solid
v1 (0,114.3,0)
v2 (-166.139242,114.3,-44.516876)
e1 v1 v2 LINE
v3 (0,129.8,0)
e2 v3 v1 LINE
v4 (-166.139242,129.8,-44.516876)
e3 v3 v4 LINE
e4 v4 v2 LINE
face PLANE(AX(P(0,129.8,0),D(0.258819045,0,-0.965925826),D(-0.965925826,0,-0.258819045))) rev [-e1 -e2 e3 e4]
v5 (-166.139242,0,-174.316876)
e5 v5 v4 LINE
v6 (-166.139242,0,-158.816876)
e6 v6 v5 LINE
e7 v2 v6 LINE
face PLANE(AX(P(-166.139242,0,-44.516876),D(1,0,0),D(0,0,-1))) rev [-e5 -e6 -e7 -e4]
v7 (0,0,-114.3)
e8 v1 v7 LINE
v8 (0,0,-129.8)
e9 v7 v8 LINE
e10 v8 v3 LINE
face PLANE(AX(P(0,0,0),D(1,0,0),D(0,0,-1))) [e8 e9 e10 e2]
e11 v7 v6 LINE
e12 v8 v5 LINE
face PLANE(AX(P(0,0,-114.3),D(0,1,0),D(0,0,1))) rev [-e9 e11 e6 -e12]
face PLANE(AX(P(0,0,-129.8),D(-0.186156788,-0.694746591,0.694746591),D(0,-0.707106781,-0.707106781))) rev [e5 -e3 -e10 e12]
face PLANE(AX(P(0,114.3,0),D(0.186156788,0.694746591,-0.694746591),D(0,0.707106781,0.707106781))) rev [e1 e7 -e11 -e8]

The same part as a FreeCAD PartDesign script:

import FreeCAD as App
import Part
import Sketcher

V = App.Vector
Q = App.Units.Quantity

doc = App.newDocument("Part")
params = doc.addObject("Spreadsheet::Sheet", "Params")
for row, (alias, value) in enumerate([
    ("sketch1_width", "15.5 mm"),
    ("sketch2_width", "172 mm"),
], start=1):
    params.set(f"A{row}", alias)
    params.set(f"B{row}", "=" + value)
    params.setAlias(f"B{row}", alias)

body = doc.addObject("PartDesign::Body", "Body")

sketch1 = body.newObject("Sketcher::SketchObject", "Sketch")
sketch1.AttachmentSupport = (doc.getObject("YZ_Plane"), [""])
sketch1.MapMode = "FlatFace"
sketch1.addGeometry(Part.LineSegment(V(114, 0, 0), V(0, -114, 0)), False)
sketch1.addGeometry(Part.LineSegment(V(0, -114, 0), V(0, -130, 0)), False)
sketch1.addGeometry(Part.LineSegment(V(0, -130, 0), V(130, 0, 0)), False)
sketch1.addGeometry(Part.LineSegment(V(130, 0, 0), V(114, 0, 0)), False)
sketch1.addConstraint(Sketcher.Constraint("Coincident", 0, 2, 1, 1))
sketch1.addConstraint(Sketcher.Constraint("Coincident", 1, 2, 2, 1))
sketch1.addConstraint(Sketcher.Constraint("Coincident", 2, 2, 3, 1))
sketch1.addConstraint(Sketcher.Constraint("Coincident", 3, 2, 0, 1))
sketch1.addConstraint(Sketcher.Constraint("Vertical", 1))
sketch1.addConstraint(Sketcher.Constraint("Horizontal", 3))
sketch1.addConstraint(Sketcher.Constraint("PointOnObject", 0, 2, -2))
sketch1.addConstraint(Sketcher.Constraint("PointOnObject", 2, 2, -1))
sketch1.addConstraint(Sketcher.Constraint("Parallel", 0, 2))
sketch1.addConstraint(Sketcher.Constraint("Equal", 3, 1))
sketch1.addConstraint(Sketcher.Constraint("DistanceX", 3, 2, 3, 1, Q("15.5 mm")))
sketch1.addConstraint(Sketcher.Constraint("DistanceY", 0, 2, -1, 1, Q("114.3 mm")))
sketch1.setExpression("Constraints[10]", "Params.sketch1_width")

sketch2 = body.newObject("Sketcher::SketchObject", "Sketch001")
sketch2.Placement = App.Placement(V(32.45, 0, -121.105049), App.Rotation(V(-0.965925826, 0, -0.258819045), V(0, 0.999999999, 0), V(0.258819045, 0, -0.965925826), "ZXY"))
sketch2.addGeometry(Part.LineSegment(V(34, 0, 0), V(206, 0, 0)), False)
sketch2.addConstraint(Sketcher.Constraint("Horizontal", 0))
sketch2.addConstraint(Sketcher.Constraint("PointOnObject", 0, 1, -1))
sketch2.addConstraint(Sketcher.Constraint("DistanceX", 0, 1, 0, 2, Q("172 mm")))
sketch2.addConstraint(Sketcher.Constraint("DistanceX", -1, 1, 0, 2, Q("205.594712 mm")))
sketch2.setExpression("Constraints[2]", "Params.sketch2_width")
doc.recompute()

additivepipe = body.newObject("PartDesign::AdditivePipe", "AdditivePipe")
additivepipe.Profile = sketch1
additivepipe.Spine = (sketch2, ["Edge1"])

doc.recompute()
